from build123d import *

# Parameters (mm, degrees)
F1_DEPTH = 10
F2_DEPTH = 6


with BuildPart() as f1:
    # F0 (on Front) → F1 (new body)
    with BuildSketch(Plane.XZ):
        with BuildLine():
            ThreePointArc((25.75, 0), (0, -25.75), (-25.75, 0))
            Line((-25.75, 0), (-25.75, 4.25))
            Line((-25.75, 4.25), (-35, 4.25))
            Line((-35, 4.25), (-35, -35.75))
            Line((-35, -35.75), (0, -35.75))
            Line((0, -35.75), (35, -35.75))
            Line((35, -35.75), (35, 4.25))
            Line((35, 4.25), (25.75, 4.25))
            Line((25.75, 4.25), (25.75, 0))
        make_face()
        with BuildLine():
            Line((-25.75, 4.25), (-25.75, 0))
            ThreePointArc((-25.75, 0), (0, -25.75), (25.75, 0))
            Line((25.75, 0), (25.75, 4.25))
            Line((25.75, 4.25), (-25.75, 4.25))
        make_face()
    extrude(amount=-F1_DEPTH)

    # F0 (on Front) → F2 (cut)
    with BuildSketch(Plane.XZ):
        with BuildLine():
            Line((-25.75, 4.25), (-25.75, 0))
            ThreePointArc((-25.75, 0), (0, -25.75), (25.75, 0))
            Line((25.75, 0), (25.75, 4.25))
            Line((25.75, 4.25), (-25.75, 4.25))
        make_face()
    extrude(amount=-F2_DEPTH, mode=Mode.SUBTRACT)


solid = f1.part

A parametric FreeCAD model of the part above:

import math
import FreeCAD as App
import Part
import Sketcher

V = App.Vector
Q = App.Units.Quantity

doc = App.newDocument("Part")
body = doc.addObject("PartDesign::Body", "Body")

# Sketch on XZ plane
sketch1 = body.newObject("Sketcher::SketchObject", "Sketch")
sketch1.AttachmentSupport = (doc.getObject("XZ_Plane"), [""])
sketch1.MapMode = "FlatFace"
sketch1.addGeometry(Part.LineSegment(V(-35, 4.25, 0), V(-35, -35.75, 0)), False)
sketch1.addGeometry(Part.LineSegment(V(-35, -35.75, 0), V(35, -35.75, 0)), False)
sketch1.addGeometry(Part.LineSegment(V(35, -35.75, 0), V(35, 4.25, 0)), False)
sketch1.addGeometry(Part.LineSegment(V(35, 4.25, 0), V(-35, 4.25, 0)), False)
sketch1.addConstraint(Sketcher.Constraint("Coincident", 0, 2, 1, 1))
sketch1.addConstraint(Sketcher.Constraint("Coincident", 1, 2, 2, 1))
sketch1.addConstraint(Sketcher.Constraint("Coincident", 2, 2, 3, 1))
sketch1.addConstraint(Sketcher.Constraint("Coincident", 3, 2, 0, 1))
sketch1.addConstraint(Sketcher.Constraint("Vertical", 0))
sketch1.addConstraint(Sketcher.Constraint("Horizontal", 1))
sketch1.addConstraint(Sketcher.Constraint("Vertical", 2))
sketch1.addConstraint(Sketcher.Constraint("Horizontal", 3))
sketch1.addConstraint(Sketcher.Constraint("DistanceX", 1, 1, 1, 2, Q("70 mm")))
sketch1.addConstraint(Sketcher.Constraint("DistanceY", 0, 2, 0, 1, Q("40 mm")))
sketch1.addConstraint(Sketcher.Constraint("DistanceX", 0, 2, -1, 1, Q("35 mm")))
sketch1.addConstraint(Sketcher.Constraint("DistanceY", 0, 2, -1, 1, Q("35.75 mm")))
pad1 = body.newObject("PartDesign::Pad", "Pad")
pad1.Profile = sketch1
pad1.Length = 10
pad1.Reversed = True

# Sketch on XZ plane
sketch2 = body.newObject("Sketcher::SketchObject", "Sketch001")
sketch2.AttachmentSupport = (doc.getObject("XZ_Plane"), [""])
sketch2.MapMode = "FlatFace"
sketch2.addGeometry(Part.LineSegment(V(-25.75, 4.25, 0), V(-25.75, 0, 0)), False)
sketch2.addGeometry(Part.ArcOfCircle(Part.Circle(V(0, 0, 0), V(0, 0, 1), 25.75), math.radians(180), math.radians(360)), False)
sketch2.addGeometry(Part.LineSegment(V(25.75, 0, 0), V(25.75, 4.25, 0)), False)
sketch2.addGeometry(Part.LineSegment(V(25.75, 4.25, 0), V(-25.75, 4.25, 0)), False)
sketch2.addConstraint(Sketcher.Constraint("Tangent", 0, 2, 1, 1))
sketch2.addConstraint(Sketcher.Constraint("Tangent", 1, 2, 2, 1))
sketch2.addConstraint(Sketcher.Constraint("Coincident", 2, 2, 3, 1))
sketch2.addConstraint(Sketcher.Constraint("Coincident", 3, 2, 0, 1))
sketch2.addConstraint(Sketcher.Constraint("Vertical", 0))
sketch2.addConstraint(Sketcher.Constraint("Vertical", 2))
sketch2.addConstraint(Sketcher.Constraint("Horizontal", 3))
sketch2.addConstraint(Sketcher.Constraint("Coincident", 1, 3, -1, 1))
sketch2.addConstraint(Sketcher.Constraint("Radius", 1, Q("25.75 mm")))
sketch2.addConstraint(Sketcher.Constraint("DistanceY", 0, 2, 0, 1, Q("4.25 mm")))
pocket1 = body.newObject("PartDesign::Pocket", "Pocket")
pocket1.Profile = sketch2
pocket1.Length = 6

doc.recompute()
